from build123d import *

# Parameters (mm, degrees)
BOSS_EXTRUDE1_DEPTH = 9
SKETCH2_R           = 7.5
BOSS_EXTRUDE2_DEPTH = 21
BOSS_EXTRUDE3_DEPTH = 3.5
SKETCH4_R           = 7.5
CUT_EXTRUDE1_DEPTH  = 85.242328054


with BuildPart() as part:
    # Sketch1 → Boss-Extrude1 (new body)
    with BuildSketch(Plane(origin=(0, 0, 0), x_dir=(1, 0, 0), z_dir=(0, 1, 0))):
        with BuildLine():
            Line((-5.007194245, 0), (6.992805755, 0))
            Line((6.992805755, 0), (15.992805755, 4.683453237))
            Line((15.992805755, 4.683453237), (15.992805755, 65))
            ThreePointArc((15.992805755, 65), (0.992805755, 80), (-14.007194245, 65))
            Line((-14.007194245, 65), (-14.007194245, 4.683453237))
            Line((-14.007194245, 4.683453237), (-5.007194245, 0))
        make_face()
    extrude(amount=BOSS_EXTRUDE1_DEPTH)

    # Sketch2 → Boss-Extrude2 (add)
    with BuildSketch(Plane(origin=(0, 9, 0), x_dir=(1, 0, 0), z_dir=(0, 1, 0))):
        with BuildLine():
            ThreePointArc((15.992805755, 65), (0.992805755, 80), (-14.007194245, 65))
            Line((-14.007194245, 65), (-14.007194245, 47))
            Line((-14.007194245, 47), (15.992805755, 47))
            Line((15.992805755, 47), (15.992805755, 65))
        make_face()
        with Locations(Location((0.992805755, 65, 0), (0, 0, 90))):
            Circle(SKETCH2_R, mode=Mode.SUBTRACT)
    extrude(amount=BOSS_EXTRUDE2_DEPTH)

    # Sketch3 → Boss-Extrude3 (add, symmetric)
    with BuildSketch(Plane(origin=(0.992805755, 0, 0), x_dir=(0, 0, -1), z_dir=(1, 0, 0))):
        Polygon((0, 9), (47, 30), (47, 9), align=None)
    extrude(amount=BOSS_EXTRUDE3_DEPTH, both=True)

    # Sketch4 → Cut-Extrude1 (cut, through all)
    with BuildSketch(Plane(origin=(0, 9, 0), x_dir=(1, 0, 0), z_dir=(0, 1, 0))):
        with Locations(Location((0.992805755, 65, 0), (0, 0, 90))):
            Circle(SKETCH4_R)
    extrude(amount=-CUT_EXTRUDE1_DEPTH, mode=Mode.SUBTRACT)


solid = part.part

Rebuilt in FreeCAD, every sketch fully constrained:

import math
import FreeCAD as App
import Part
import Sketcher
from FreeCAD import Vector

doc = App.newDocument("Part")
body = doc.addObject("PartDesign::Body", "Body")

sketch1 = body.newObject("Sketcher::SketchObject", "Sketch")
sketch1.AttachmentSupport = (doc.getObject("XZ_Plane"), [""])
sketch1.MapMode = "FlatFace"
sketch1.addGeometry(Part.LineSegment(Vector(-5.007194, 0, 0), Vector(6.992806, 0, 0)), False)
sketch1.addGeometry(Part.LineSegment(Vector(6.992806, 0, 0), Vector(15.992806, -4.683453, 0)), False)
sketch1.addGeometry(Part.LineSegment(Vector(15.992806, -4.683453, 0), Vector(15.992806, -65, 0)), False)
sketch1.addGeometry(Part.ArcOfCircle(Part.Circle(Vector(0.992806, -65, 0), Vector(0, 0, 1), 15), math.radians(180), math.radians(360)), False)
sketch1.addGeometry(Part.LineSegment(Vector(-14.007194, -65, 0), Vector(-14.007194, -4.683453, 0)), False)
sketch1.addGeometry(Part.LineSegment(Vector(-14.007194, -4.683453, 0), Vector(-5.007194, 0, 0)), False)
sketch1.addConstraint(Sketcher.Constraint("Coincident", 0, 2, 1, 1))
sketch1.addConstraint(Sketcher.Constraint("Coincident", 1, 2, 2, 1))
sketch1.addConstraint(Sketcher.Constraint("Tangent", 2, 2, 3, 2))
sketch1.addConstraint(Sketcher.Constraint("Tangent", 3, 1, 4, 1))
sketch1.addConstraint(Sketcher.Constraint("Coincident", 4, 2, 5, 1))
sketch1.addConstraint(Sketcher.Constraint("Coincident", 5, 2, 0, 1))
sketch1.addConstraint(Sketcher.Constraint("Horizontal", 0))
sketch1.addConstraint(Sketcher.Constraint("Vertical", 2))
sketch1.addConstraint(Sketcher.Constraint("Vertical", 4))
sketch1.addConstraint(Sketcher.Constraint("PointOnObject", 0, 2, -1))
sketch1.addConstraint(Sketcher.Constraint("Horizontal", 1, 2, 4, 2))
sketch1.addConstraint(Sketcher.Constraint("Equal", 1, 5))
sketch1.addConstraint(Sketcher.Constraint("Radius", 3, 15.0))
sketch1.addConstraint(Sketcher.Constraint("DistanceX", 0, 1, 0, 2, 12.0))
sketch1.addConstraint(Sketcher.Constraint("DistanceY", 3, 3, -1, 1, 65.0))
sketch1.addConstraint(Sketcher.Constraint("DistanceY", 2, 2, 2, 1, 60.316547))
sketch1.addConstraint(Sketcher.Constraint("DistanceX", -1, 1, 3, 3, 0.992806))
pad1 = body.newObject("PartDesign::Pad", "Pad")
pad1.Profile = sketch1
pad1.Length = 9
pad1.Reversed = True

sketch2 = body.newObject("Sketcher::SketchObject", "Sketch001")
sketch2.AttachmentSupport = (doc.getObject("XZ_Plane"), [""])
sketch2.MapMode = "FlatFace"
sketch2.AttachmentOffset = App.Placement(Vector(0, 0, -9), App.Rotation())
sketch2.addGeometry(Part.ArcOfCircle(Part.Circle(Vector(0.992806, -65, 0), Vector(0, 0, 1), 15), math.radians(180), math.radians(360)), False)
sketch2.addGeometry(Part.LineSegment(Vector(-14.007194, -65, 0), Vector(-14.007194, -47, 0)), False)
sketch2.addGeometry(Part.LineSegment(Vector(-14.007194, -47, 0), Vector(15.992806, -47, 0)), False)
sketch2.addGeometry(Part.LineSegment(Vector(15.992806, -47, 0), Vector(15.992806, -65, 0)), False)
sketch2.addGeometry(Part.Circle(Vector(0.992806, -65, 0), Vector(0, 0, 1), 7.5), False)
sketch2.addConstraint(Sketcher.Constraint("Tangent", 0, 1, 1, 1))
sketch2.addConstraint(Sketcher.Constraint("Coincident", 1, 2, 2, 1))
sketch2.addConstraint(Sketcher.Constraint("Coincident", 2, 2, 3, 1))
sketch2.addConstraint(Sketcher.Constraint("Tangent", 3, 2, 0, 2))
sketch2.addConstraint(Sketcher.Constraint("Vertical", 1))
sketch2.addConstraint(Sketcher.Constraint("Horizontal", 2))
sketch2.addConstraint(Sketcher.Constraint("Vertical", 3))
sketch2.addConstraint(Sketcher.Constraint("Coincident", 4, 3, 0, 3))
sketch2.addConstraint(Sketcher.Constraint("Diameter", 4, 15.0))
sketch2.addConstraint(Sketcher.Constraint("Radius", 0, 15.0))
sketch2.addConstraint(Sketcher.Constraint("DistanceY", 1, 1, 1, 2, 18.0))
sketch2.addConstraint(Sketcher.Constraint("DistanceY", 0, 3, -1, 1, 65.0))
sketch2.addConstraint(Sketcher.Constraint("DistanceX", -1, 1, 0, 3, 0.992806))
pad2 = body.newObject("PartDesign::Pad", "Pad001")
pad2.Profile = sketch2
pad2.Length = 21
pad2.Reversed = True

sketch3 = body.newObject("Sketcher::SketchObject", "Sketch002")
sketch3.AttachmentSupport = (doc.getObject("YZ_Plane"), [""])
sketch3.MapMode = "FlatFace"
sketch3.AttachmentOffset = App.Placement(Vector(0, 0, 0.992806), App.Rotation())
sketch3.addGeometry(Part.LineSegment(Vector(30, -47, 0), Vector(9, 0, 0)), False)
sketch3.addGeometry(Part.LineSegment(Vector(9, 0, 0), Vector(9, -47, 0)), False)
sketch3.addGeometry(Part.LineSegment(Vector(9, -47, 0), Vector(30, -47, 0)), False)
sketch3.addConstraint(Sketcher.Constraint("Coincident", 0, 2, 1, 1))
sketch3.addConstraint(Sketcher.Constraint("Coincident", 1, 2, 2, 1))
sketch3.addConstraint(Sketcher.Constraint("Coincident", 2, 2, 0, 1))
sketch3.addConstraint(Sketcher.Constraint("Vertical", 1))
sketch3.addConstraint(Sketcher.Constraint("Horizontal", 2))
sketch3.addConstraint(Sketcher.Constraint("PointOnObject", 0, 2, -1))
sketch3.addConstraint(Sketcher.Constraint("DistanceX", 2, 1, 2, 2, 21.0))
sketch3.addConstraint(Sketcher.Constraint("DistanceY", 1, 2, 1, 1, 47.0))
sketch3.addConstraint(Sketcher.Constraint("DistanceX", -1, 1, 0, 2, 9.0))
pad3 = body.newObject("PartDesign::Pad", "Pad002")
pad3.Profile = sketch3
pad3.Length = 7
pad3.Midplane = True

sketch4 = body.newObject("Sketcher::SketchObject", "Sketch003")
sketch4.AttachmentSupport = (doc.getObject("XZ_Plane"), [""])
sketch4.MapMode = "FlatFace"
sketch4.AttachmentOffset = App.Placement(Vector(0, 0, -9), App.Rotation())
sketch4.addGeometry(Part.Circle(Vector(0.992806, -65, 0), Vector(0, 0, 1), 7.5), False)
sketch4.addConstraint(Sketcher.Constraint("Diameter", 0, 15.0))
sketch4.addConstraint(Sketcher.Constraint("DistanceY", 0, 3, -1, 1, 65.0))
sketch4.addConstraint(Sketcher.Constraint("DistanceX", -1, 1, 0, 3, 0.992806))
pocket1 = body.newObject("PartDesign::Pocket", "Pocket")
pocket1.Profile = sketch4
pocket1.Type = "ThroughAll"
pocket1.Reversed = True

doc.recompute()
